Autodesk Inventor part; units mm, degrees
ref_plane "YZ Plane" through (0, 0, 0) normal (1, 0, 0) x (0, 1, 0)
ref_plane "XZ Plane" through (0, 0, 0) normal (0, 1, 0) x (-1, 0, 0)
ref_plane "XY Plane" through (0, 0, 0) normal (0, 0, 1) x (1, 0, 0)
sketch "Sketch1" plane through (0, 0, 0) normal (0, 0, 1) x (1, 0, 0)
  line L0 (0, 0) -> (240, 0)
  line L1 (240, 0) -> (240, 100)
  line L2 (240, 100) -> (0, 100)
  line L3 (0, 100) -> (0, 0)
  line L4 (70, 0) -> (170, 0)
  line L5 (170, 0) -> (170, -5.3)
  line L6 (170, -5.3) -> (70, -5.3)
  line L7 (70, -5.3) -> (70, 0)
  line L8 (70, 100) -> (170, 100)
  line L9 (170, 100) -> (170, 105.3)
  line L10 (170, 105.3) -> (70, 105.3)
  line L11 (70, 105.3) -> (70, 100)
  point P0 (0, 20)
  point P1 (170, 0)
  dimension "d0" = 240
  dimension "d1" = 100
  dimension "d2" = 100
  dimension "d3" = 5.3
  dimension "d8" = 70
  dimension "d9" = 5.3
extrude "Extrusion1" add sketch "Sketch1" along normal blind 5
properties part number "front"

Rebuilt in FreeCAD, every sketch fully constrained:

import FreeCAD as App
import Part
import Sketcher

V = App.Vector
Q = App.Units.Quantity


def add_polygon(sketch, points):
    """Adds a closed chain of lines whose ends are joined by coincident constraints."""
    first, n = sketch.GeometryCount, len(points)
    for a, b in zip(points, points[1:] + points[:1]):
        sketch.addGeometry(Part.LineSegment(App.Vector(*a, 0), App.Vector(*b, 0)), False)
    for i in range(n):
        sketch.addConstraint(Sketcher.Constraint("Coincident", first + i, 2, first + (i + 1) % n, 1))

doc = App.newDocument("Part")
params = doc.addObject("Spreadsheet::Sheet", "Params")
for row, (alias, value) in enumerate([
    ("sketch1_width", "70 mm"),
    ("sketch1_width2", "100 mm"),
    ("sketch1_height", "5.3 mm"),
    ("pad1_length", "5 mm"),
], start=1):
    params.set(f"A{row}", alias)
    params.set(f"B{row}", "=" + value)
    params.setAlias(f"B{row}", alias)

body = doc.addObject("PartDesign::Body", "Body")

sketch1 = body.newObject("Sketcher::SketchObject", "Sketch")
sketch1.AttachmentSupport = (doc.getObject("XY_Plane"), [""])
sketch1.MapMode = "FlatFace"
add_polygon(sketch1, [(0, 100), (0, 0), (70, 0), (70, -5), (170, -5), (170, 0), (240, 0), (240, 100), (170, 100), (170, 105), (70, 105), (70, 100)])
sketch1.addConstraint(Sketcher.Constraint("Vertical", 0))
sketch1.addConstraint(Sketcher.Constraint("Horizontal", 1))
sketch1.addConstraint(Sketcher.Constraint("Vertical", 2))
sketch1.addConstraint(Sketcher.Constraint("Horizontal", 3))
sketch1.addConstraint(Sketcher.Constraint("Vertical", 4))
sketch1.addConstraint(Sketcher.Constraint("Horizontal", 5))
sketch1.addConstraint(Sketcher.Constraint("Vertical", 6))
sketch1.addConstraint(Sketcher.Constraint("Horizontal", 7))
sketch1.addConstraint(Sketcher.Constraint("Vertical", 8))
sketch1.addConstraint(Sketcher.Constraint("Horizontal", 9))
sketch1.addConstraint(Sketcher.Constraint("Vertical", 10))
sketch1.addConstraint(Sketcher.Constraint("Horizontal", 11))
sketch1.addConstraint(Sketcher.Constraint("Coincident", 0, 2, -1, 1))
sketch1.addConstraint(Sketcher.Constraint("PointOnObject", 4, 2, -1))
sketch1.addConstraint(Sketcher.Constraint("Horizontal", 7, 2, 10, 2))
sketch1.addConstraint(Sketcher.Constraint("Vertical", 4, 2, 7, 2))
sketch1.addConstraint(Sketcher.Constraint("Vertical", 2, 2, 9, 2))
sketch1.addConstraint(Sketcher.Constraint("Equal", 1, 5))
sketch1.addConstraint(Sketcher.Constraint("Equal", 9, 0))
sketch1.addConstraint(Sketcher.Constraint("Equal", 4, 8))
sketch1.addConstraint(Sketcher.Constraint("DistanceX", 1, 1, 1, 2, Q("70 mm")))
sketch1.addConstraint(Sketcher.Constraint("DistanceX", 3, 1, 3, 2, Q("100 mm")))
sketch1.addConstraint(Sketcher.Constraint("DistanceY", 2, 2, 2, 1, Q("5.3 mm")))
sketch1.setExpression("Constraints[32]", "Params.sketch1_width")
sketch1.setExpression("Constraints[33]", "Params.sketch1_width2")
sketch1.setExpression("Constraints[34]", "Params.sketch1_height")
pad1 = body.newObject("PartDesign::Pad", "Pad")
pad1.Profile = sketch1
pad1.setExpression("Length", "Params.pad1_length")

doc.recompute()
